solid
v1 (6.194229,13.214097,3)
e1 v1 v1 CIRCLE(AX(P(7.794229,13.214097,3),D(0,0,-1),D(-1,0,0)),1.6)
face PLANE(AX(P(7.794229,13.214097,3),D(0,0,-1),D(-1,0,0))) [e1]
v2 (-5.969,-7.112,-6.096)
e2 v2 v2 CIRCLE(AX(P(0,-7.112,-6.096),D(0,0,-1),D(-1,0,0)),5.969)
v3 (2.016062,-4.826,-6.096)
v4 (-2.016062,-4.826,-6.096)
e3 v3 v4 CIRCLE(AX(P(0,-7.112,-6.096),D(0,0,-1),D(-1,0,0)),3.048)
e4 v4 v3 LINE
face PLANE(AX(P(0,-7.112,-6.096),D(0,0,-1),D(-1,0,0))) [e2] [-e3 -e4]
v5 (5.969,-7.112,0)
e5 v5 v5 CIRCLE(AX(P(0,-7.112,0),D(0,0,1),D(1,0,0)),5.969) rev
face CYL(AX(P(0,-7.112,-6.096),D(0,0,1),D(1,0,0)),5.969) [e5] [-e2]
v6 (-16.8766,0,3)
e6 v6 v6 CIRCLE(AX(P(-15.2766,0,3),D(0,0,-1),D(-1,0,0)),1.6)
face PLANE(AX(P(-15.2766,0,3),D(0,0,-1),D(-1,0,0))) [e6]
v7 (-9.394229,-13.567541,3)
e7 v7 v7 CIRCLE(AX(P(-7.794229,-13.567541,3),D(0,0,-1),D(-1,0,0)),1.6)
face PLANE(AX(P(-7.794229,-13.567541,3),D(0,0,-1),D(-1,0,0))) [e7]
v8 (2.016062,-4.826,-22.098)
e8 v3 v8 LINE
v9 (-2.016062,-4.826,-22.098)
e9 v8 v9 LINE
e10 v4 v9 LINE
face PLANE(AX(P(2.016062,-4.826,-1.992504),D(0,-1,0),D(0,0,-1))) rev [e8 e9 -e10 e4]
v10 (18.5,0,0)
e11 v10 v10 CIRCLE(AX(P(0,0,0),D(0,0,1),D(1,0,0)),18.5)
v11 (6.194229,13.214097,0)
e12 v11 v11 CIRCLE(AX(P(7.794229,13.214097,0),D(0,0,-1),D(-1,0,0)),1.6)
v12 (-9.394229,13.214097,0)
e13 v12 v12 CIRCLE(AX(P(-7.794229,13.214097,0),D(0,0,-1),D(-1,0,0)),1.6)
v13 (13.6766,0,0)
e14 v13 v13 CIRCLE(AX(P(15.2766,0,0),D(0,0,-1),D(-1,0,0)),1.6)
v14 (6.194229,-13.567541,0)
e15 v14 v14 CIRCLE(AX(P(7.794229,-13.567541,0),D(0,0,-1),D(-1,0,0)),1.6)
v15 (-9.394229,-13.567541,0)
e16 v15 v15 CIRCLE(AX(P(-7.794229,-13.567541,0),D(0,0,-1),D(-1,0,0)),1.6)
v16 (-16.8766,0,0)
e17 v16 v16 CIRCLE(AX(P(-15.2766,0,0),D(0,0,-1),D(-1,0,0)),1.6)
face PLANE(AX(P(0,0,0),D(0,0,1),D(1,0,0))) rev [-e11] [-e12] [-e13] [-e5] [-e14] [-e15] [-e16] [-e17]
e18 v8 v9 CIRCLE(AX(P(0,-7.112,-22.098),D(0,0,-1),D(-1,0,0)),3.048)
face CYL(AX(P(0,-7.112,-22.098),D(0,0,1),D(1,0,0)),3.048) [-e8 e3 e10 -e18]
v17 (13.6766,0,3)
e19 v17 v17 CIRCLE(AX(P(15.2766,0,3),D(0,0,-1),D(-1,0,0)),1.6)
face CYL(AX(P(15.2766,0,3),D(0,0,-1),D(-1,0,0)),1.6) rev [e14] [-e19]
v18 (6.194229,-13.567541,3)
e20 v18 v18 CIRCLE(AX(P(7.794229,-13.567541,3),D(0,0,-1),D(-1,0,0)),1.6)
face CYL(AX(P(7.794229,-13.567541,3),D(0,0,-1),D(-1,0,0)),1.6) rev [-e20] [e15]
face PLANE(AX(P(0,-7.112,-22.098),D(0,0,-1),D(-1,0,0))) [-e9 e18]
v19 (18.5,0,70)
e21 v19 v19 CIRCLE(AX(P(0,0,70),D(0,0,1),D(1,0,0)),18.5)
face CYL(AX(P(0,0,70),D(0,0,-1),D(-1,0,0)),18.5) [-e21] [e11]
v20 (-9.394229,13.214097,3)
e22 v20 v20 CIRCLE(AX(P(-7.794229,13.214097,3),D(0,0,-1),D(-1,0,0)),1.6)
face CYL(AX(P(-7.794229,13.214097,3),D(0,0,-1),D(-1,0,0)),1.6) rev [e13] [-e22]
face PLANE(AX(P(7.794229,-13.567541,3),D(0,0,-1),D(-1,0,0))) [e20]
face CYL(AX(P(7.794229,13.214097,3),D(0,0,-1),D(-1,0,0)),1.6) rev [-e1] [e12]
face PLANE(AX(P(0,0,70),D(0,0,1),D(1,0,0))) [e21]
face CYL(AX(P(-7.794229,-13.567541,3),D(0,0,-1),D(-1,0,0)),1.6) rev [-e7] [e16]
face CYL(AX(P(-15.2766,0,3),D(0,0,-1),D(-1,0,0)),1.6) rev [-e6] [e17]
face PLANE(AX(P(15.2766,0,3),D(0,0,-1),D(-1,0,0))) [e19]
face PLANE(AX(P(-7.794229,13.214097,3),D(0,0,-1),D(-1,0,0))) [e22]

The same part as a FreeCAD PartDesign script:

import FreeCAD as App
import Part
import Sketcher
from FreeCAD import Vector
Q = App.Units.Quantity


def add_polygon(sketch, points):
    """Adds a closed chain of lines whose ends are joined by coincident constraints."""
    first, n = sketch.GeometryCount, len(points)
    for a, b in zip(points, points[1:] + points[:1]):
        sketch.addGeometry(Part.LineSegment(App.Vector(*a, 0), App.Vector(*b, 0)), False)
    for i in range(n):
        sketch.addConstraint(Sketcher.Constraint("Coincident", first + i, 2, first + (i + 1) % n, 1))

doc = App.newDocument("Part")
body = doc.addObject("PartDesign::Body", "Body")

# Sketch on XY plane
sketch1 = doc.addObject("Sketcher::SketchObject", "Sketch")
body.addObject(sketch1)
sketch1.AttachmentSupport = (doc.XY_Plane, [""])
sketch1.MapMode = "FlatFace"
sketch1.addGeometry(Part.Circle(Vector(0, 0, 0), Vector(0, 0, 1), 18), False)
sketch1.addConstraint([
    Sketcher.Constraint("Coincident", 0, 3, -1, 1),
    Sketcher.Constraint("Diameter", 0, Q("37 mm")),
])
pad1 = doc.addObject("PartDesign::Pad", "Pad")
body.addObject(pad1)
pad1.Profile = sketch1
pad1.Length = 70

# Sketch on XY plane
sketch2 = doc.addObject("Sketcher::SketchObject", "Sketch001")
body.addObject(sketch2)
sketch2.AttachmentSupport = (doc.XY_Plane, [""])
sketch2.MapMode = "FlatFace"
sketch2.addGeometry(Part.Circle(Vector(0, -7, 0), Vector(0, 0, 1), 6), False)
sketch2.addConstraint([
    Sketcher.Constraint("PointOnObject", 0, 3, -2),
    Sketcher.Constraint("Diameter", 0, Q("11.938 mm")),
    Sketcher.Constraint("DistanceY", 0, 3, -1, 1, Q("7.112 mm")),
])
pad2 = doc.addObject("PartDesign::Pad", "Pad001")
body.addObject(pad2)
pad2.Profile = sketch2
pad2.Length = 6.096
pad2.Reversed = True

# Sketch on XY plane
sketch3 = doc.addObject("Sketcher::SketchObject", "Sketch002")
body.addObject(sketch3)
sketch3.AttachmentSupport = (doc.XY_Plane, [""])
sketch3.MapMode = "FlatFace"
sketch3.AttachmentOffset = App.Placement(Vector(0, 0, -6.096), App.Rotation())
sketch3.addGeometry(Part.Circle(Vector(0, -7.1, 0), Vector(0, 0, 1), 3), False)
sketch3.addConstraint([
    Sketcher.Constraint("PointOnObject", 0, 3, -2),
    Sketcher.Constraint("Diameter", 0, Q("6.096 mm")),
    Sketcher.Constraint("DistanceY", 0, 3, -1, 1, Q("7.112 mm")),
])
pad3 = doc.addObject("PartDesign::Pad", "Pad002")
body.addObject(pad3)
pad3.Profile = sketch3
pad3.Length = 16.002
pad3.Reversed = True

# Sketch on XY plane
sketch4 = doc.addObject("Sketcher::SketchObject", "Sketch003")
body.addObject(sketch4)
sketch4.AttachmentSupport = (doc.XY_Plane, [""])
sketch4.MapMode = "FlatFace"
sketch4.addGeometry([
    Part.Circle(Vector(15.3, 0, 0), Vector(0, 0, 1), 1.6),  # 0
    Part.Circle(Vector(-15.3, 0, 0), Vector(0, 0, 1), 1.6),  # 1
    Part.Circle(Vector(-7.8, -13.6, 0), Vector(0, 0, 1), 1.6),  # 2
    Part.Circle(Vector(7.8, -13.6, 0), Vector(0, 0, 1), 1.6),  # 3
    Part.Circle(Vector(7.8, 13.2, 0), Vector(0, 0, 1), 1.6),  # 4
    Part.Circle(Vector(-7.8, 13.2, 0), Vector(0, 0, 1), 1.6),  # 5
], False)
sketch4.addConstraint([
    Sketcher.Constraint("Equal", 0, 1),
    Sketcher.Constraint("Equal", 1, 2),
    Sketcher.Constraint("Equal", 2, 3),
    Sketcher.Constraint("Equal", 3, 4),
    Sketcher.Constraint("Equal", 4, 5),
    Sketcher.Constraint("Symmetric", 0, 3, 1, 3, -1, 1),
    Sketcher.Constraint("Symmetric", 2, 3, 3, 3, -2),
    Sketcher.Constraint("Symmetric", 4, 3, 5, 3, -2),
    Sketcher.Constraint("PointOnObject", 0, 3, -1),
    Sketcher.Constraint("Vertical", 3, 3, 4, 3),
    Sketcher.Constraint("Diameter", 0, Q("3.2 mm")),
    Sketcher.Constraint("DistanceX", -1, 1, 0, 3, Q("15.2766 mm")),
    Sketcher.Constraint("DistanceX", 2, 3, -1, 1, Q("7.794229 mm")),
    Sketcher.Constraint("DistanceY", 2, 3, -1, 1, Q("13.567541 mm")),
    Sketcher.Constraint("DistanceY", -1, 1, 4, 3, Q("13.214097 mm")),
])
pocket1 = doc.addObject("PartDesign::Pocket", "Pocket")
body.addObject(pocket1)
pocket1.Profile = sketch4
pocket1.Length = 3
pocket1.Reversed = True

# Sketch on XY plane
sketch5 = doc.addObject("Sketcher::SketchObject", "Sketch004")
body.addObject(sketch5)
sketch5.AttachmentSupport = (doc.XY_Plane, [""])
sketch5.MapMode = "FlatFace"
sketch5.AttachmentOffset = App.Placement(Vector(0, 0, -22.098), App.Rotation())
add_polygon(sketch5, [(2, -4.1), (2, -4.8), (-2, -4.8), (-2, -4.1)])  # lines 0-3
sketch5.addConstraint([
    Sketcher.Constraint("Vertical", 0),
    Sketcher.Constraint("Horizontal", 1),
    Sketcher.Constraint("Vertical", 2),
    Sketcher.Constraint("Horizontal", 3),
    Sketcher.Constraint("DistanceY", 0, 2, 0, 1, Q("0.762 mm")),
    Sketcher.Constraint("DistanceY", 0, 2, -1, 1, Q("4.826 mm")),
    Sketcher.Constraint("DistanceX", 1, 2, 1, 1, Q("4.032125 mm")),
    Sketcher.Constraint("DistanceX", -1, 1, 0, 2, Q("2.016062 mm")),
])
pocket2 = doc.addObject("PartDesign::Pocket", "Pocket001")
body.addObject(pocket2)
pocket2.Profile = sketch5
pocket2.Length = 16.002
pocket2.Reversed = True

doc.recompute()
